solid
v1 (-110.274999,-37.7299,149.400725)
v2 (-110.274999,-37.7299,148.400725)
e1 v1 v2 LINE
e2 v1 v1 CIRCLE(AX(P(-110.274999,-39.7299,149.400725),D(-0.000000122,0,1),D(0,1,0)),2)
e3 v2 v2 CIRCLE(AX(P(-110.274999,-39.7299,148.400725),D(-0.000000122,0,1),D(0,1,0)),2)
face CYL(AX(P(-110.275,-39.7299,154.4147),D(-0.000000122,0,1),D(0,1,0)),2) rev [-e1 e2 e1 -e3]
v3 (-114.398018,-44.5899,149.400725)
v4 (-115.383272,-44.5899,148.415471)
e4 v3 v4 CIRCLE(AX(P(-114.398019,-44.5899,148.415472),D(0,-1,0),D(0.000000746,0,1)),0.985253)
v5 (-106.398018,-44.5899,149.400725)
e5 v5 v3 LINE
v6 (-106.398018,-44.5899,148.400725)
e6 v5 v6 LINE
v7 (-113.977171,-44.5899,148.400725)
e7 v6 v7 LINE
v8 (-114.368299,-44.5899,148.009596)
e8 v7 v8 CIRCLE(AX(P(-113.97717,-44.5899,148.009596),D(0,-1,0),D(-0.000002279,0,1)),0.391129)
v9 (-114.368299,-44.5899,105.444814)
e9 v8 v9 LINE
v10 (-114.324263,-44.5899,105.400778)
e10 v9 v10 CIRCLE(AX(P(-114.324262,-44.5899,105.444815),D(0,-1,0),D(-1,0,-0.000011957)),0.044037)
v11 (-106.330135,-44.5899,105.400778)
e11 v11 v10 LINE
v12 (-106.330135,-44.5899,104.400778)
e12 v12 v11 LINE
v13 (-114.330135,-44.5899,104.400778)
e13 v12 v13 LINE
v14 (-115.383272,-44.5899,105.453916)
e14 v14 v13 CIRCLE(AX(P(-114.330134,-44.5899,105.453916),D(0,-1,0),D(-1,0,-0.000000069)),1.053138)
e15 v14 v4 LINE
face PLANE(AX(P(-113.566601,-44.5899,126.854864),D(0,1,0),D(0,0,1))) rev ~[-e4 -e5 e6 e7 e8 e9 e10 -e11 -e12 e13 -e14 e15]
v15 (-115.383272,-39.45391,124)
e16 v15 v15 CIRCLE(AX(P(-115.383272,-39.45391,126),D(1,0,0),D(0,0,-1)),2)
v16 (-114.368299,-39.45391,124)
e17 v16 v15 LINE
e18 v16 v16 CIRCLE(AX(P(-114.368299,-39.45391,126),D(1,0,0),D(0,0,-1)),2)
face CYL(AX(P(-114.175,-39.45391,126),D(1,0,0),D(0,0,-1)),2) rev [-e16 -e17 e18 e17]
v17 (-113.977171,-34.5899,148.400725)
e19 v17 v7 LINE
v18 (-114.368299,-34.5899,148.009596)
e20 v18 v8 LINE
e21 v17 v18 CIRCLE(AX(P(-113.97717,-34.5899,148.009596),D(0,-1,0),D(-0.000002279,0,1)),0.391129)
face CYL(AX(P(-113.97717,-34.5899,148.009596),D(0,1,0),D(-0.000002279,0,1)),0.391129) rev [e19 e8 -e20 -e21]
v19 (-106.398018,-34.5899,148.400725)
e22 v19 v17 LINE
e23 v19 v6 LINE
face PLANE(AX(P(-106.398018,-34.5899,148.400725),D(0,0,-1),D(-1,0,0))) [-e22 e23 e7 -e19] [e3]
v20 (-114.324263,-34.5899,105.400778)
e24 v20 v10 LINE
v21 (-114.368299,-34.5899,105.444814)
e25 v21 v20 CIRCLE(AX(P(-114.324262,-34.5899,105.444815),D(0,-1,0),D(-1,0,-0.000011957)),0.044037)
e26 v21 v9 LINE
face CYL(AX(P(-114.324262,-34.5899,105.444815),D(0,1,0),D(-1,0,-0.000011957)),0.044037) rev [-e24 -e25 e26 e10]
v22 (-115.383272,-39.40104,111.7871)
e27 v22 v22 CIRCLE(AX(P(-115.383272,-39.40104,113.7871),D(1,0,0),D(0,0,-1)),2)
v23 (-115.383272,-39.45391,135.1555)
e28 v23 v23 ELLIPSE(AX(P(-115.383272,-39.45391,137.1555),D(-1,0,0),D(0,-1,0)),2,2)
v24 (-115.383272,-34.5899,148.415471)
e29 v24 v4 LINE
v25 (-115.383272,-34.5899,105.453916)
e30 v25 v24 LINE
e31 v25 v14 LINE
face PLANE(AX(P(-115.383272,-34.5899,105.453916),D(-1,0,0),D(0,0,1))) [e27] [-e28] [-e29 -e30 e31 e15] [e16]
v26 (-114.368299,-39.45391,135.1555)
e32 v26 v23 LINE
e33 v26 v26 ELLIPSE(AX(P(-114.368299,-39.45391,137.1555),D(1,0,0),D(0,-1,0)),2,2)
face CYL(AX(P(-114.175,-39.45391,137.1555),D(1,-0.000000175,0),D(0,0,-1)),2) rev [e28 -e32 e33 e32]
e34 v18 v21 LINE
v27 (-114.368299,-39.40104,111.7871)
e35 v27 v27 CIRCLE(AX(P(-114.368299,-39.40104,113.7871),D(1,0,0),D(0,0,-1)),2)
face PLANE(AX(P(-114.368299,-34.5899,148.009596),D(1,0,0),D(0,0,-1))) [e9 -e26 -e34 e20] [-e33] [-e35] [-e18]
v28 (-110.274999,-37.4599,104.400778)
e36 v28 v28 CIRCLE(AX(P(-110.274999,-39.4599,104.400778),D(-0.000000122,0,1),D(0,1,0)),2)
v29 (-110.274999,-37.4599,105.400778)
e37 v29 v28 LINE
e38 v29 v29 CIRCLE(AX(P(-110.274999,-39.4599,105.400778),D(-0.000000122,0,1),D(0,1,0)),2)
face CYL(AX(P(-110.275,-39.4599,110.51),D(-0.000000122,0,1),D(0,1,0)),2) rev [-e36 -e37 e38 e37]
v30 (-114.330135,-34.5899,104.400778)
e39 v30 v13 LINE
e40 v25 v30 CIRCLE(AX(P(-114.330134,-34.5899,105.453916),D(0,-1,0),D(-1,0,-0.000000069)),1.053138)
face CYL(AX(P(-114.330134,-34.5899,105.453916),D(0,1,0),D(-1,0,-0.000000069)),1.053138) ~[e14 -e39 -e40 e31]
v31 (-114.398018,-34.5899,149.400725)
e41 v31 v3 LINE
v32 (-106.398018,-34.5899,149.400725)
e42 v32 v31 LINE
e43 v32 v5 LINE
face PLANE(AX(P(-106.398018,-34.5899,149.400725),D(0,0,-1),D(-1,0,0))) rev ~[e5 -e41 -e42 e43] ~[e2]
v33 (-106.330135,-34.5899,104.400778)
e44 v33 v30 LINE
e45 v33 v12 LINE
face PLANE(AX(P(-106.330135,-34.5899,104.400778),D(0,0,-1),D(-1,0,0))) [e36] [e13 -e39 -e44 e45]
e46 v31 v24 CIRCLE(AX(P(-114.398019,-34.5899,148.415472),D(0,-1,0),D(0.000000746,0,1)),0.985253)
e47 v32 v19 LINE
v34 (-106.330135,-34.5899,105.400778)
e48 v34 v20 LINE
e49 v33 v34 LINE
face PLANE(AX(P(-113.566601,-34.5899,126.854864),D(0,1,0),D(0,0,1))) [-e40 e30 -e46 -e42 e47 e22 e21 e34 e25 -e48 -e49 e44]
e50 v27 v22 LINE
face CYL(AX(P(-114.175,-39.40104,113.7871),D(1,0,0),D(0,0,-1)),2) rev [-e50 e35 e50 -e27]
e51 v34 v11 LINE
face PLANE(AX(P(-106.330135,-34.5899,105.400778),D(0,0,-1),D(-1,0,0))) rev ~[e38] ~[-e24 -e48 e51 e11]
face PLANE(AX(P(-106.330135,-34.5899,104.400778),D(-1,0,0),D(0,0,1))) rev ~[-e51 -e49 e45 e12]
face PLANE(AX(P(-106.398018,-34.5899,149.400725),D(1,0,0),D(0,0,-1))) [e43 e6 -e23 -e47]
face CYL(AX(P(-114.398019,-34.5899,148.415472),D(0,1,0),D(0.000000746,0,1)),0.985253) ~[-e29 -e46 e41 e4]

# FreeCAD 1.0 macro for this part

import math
import FreeCAD as App
import Part
import Sketcher
from FreeCAD import Vector

doc = App.newDocument("Part")
body = doc.addObject("PartDesign::Body", "Body")

# Sketch on XY plane
sketch1 = body.newObject("Sketcher::SketchObject", "Sketch")
sketch1.AttachmentSupport = (doc.getObject("XY_Plane"), [""])
sketch1.MapMode = "FlatFace"
sketch1.addGeometry(Part.Circle(Vector(0, 0, 0), Vector(0, 0, 1), 2), False)
sketch1.addConstraint([
    Sketcher.Constraint("Coincident", 0, 3, -1, 1),
    Sketcher.Constraint("Diameter", 0, 4.0),
])
pad1 = body.newObject("PartDesign::Pad", "Pad")
pad1.Profile = sketch1
pad1.Length = 10
body2 = doc.addObject("PartDesign::Body", "Body001")
doc.recompute()

body.Placement = App.Placement(Vector(0, 0, 0), App.Rotation(Vector(0, 1, 0), 90))
boolean = body2.newObject("PartDesign::Boolean", "Boolean")
boolean.Type = "Fuse"
boolean.addObjects([body])
body3 = doc.addObject("PartDesign::Body", "Body002")
doc.recompute()

body2.Placement = App.Placement(Vector(15.49, 3.9, 4.87), App.Rotation(Vector(0, 0, 1), 0.000007))
boolean2 = body3.newObject("PartDesign::Boolean", "Boolean001")
boolean2.Type = "Fuse"
boolean2.addObjects([body2])
body4 = doc.addObject("PartDesign::Body", "Body003")

# Sketch on XY plane
sketch2 = body4.newObject("Sketcher::SketchObject", "Sketch001")
sketch2.AttachmentSupport = (doc.getObject("XY_Plane003"), [""])
sketch2.MapMode = "FlatFace"
sketch2.addGeometry(Part.Circle(Vector(0, 0, 0), Vector(0, 0, 1), 2), False)
sketch2.addConstraint([
    Sketcher.Constraint("Coincident", 0, 3, -1, 1),
    Sketcher.Constraint("Diameter", 0, 4.0),
])
pad2 = body4.newObject("PartDesign::Pad", "Pad001")
pad2.Profile = sketch2
pad2.Length = 10
body5 = doc.addObject("PartDesign::Body", "Body004")
doc.recompute()

body4.Placement = App.Placement(Vector(0, 0, 0), App.Rotation(Vector(0, 1, 0), 90))
boolean3 = body5.newObject("PartDesign::Boolean", "Boolean002")
boolean3.Type = "Fuse"
boolean3.addObjects([body4])
body6 = doc.addObject("PartDesign::Body", "Body005")
doc.recompute()

body5.Placement = App.Placement(Vector(-28.4147, 3.9, 5.14), App.Rotation(Vector(0, 0, 1), 0.000007))
boolean4 = body6.newObject("PartDesign::Boolean", "Boolean003")
boolean4.Type = "Fuse"
boolean4.addObjects([body5])
body7 = doc.addObject("PartDesign::Body", "Body006")

# Sketch on XY plane
sketch3 = body7.newObject("Sketcher::SketchObject", "Sketch002")
sketch3.AttachmentSupport = (doc.getObject("XY_Plane006"), [""])
sketch3.MapMode = "FlatFace"
sketch3.addGeometry(Part.Circle(Vector(0, 0, 0), Vector(0, 0, 1), 2), False)
sketch3.addConstraint([
    Sketcher.Constraint("Coincident", 0, 3, -1, 1),
    Sketcher.Constraint("Diameter", 0, 4.0),
])
pad3 = body7.newObject("PartDesign::Pad", "Pad002")
pad3.Profile = sketch3
pad3.Length = 2
body8 = doc.addObject("PartDesign::Body", "Body007")
doc.recompute()

body7.Placement = App.Placement(Vector(0, 0, 0), App.Rotation(Vector(1, 0, 0), 271.492946))
boolean5 = body8.newObject("PartDesign::Boolean", "Boolean004")
boolean5.Type = "Fuse"
boolean5.addObjects([body7])
body9 = doc.addObject("PartDesign::Body", "Body008")
doc.recompute()

body8.Placement = App.Placement(Vector(0, 0, 0), App.Rotation(Vector(0, 1, 0), 272.98249))
boolean6 = body9.newObject("PartDesign::Boolean", "Boolean005")
boolean6.Type = "Fuse"
boolean6.addObjects([body8])
body10 = doc.addObject("PartDesign::Body", "Body009")
doc.recompute()

body9.Placement = App.Placement(Vector(-26, 5.29, 4.9), App.Rotation(Vector(0, 0, 1), 267.755985))
boolean7 = body10.newObject("PartDesign::Boolean", "Boolean006")
boolean7.Type = "Fuse"
boolean7.addObjects([body9])
body11 = doc.addObject("PartDesign::Body", "Body010")

# Sketch on XY plane
sketch4 = body11.newObject("Sketcher::SketchObject", "Sketch003")
sketch4.AttachmentSupport = (doc.getObject("XY_Plane010"), [""])
sketch4.MapMode = "FlatFace"
sketch4.addGeometry(Part.Circle(Vector(0, 0, 0), Vector(0, 0, 1), 2), False)
sketch4.addConstraint([
    Sketcher.Constraint("Coincident", 0, 3, -1, 1),
    Sketcher.Constraint("Diameter", 0, 4.0),
])
pad4 = body11.newObject("PartDesign::Pad", "Pad003")
pad4.Profile = sketch4
pad4.Length = 2
body12 = doc.addObject("PartDesign::Body", "Body011")
doc.recompute()

body11.Placement = App.Placement(Vector(-11.1555, 0, 4.86401), App.Rotation(Vector(1, 0, 0), 90.00001))
boolean8 = body12.newObject("PartDesign::Boolean", "Boolean007")
boolean8.Type = "Fuse"
boolean8.addObjects([body11])
body13 = doc.addObject("PartDesign::Body", "Body012")

# Sketch on XY plane
sketch5 = body13.newObject("Sketcher::SketchObject", "Sketch004")
sketch5.AttachmentSupport = (doc.getObject("XY_Plane012"), [""])
sketch5.MapMode = "FlatFace"
sketch5.addGeometry(Part.Circle(Vector(0, 0, 0), Vector(0, 0, 1), 2), False)
sketch5.addConstraint([
    Sketcher.Constraint("Coincident", 0, 3, -1, 1),
    Sketcher.Constraint("Diameter", 0, 4.0),
])
pad5 = body13.newObject("PartDesign::Pad", "Pad004")
pad5.Profile = sketch5
pad5.Length = 2
body14 = doc.addObject("PartDesign::Body", "Body013")
doc.recompute()

body13.Placement = App.Placement(Vector(0, 0, 0), App.Rotation(Vector(1, 0, 0), 90))
boolean9 = body14.newObject("PartDesign::Boolean", "Boolean008")
boolean9.Type = "Fuse"
boolean9.addObjects([body13])
body15 = doc.addObject("PartDesign::Body", "Body014")
doc.recompute()

body14.Placement = App.Placement(Vector(0, 0, 4.86401), App.Rotation(Vector(0, 0, 1), 0))
boolean10 = body15.newObject("PartDesign::Boolean", "Boolean009")
boolean10.Type = "Fuse"
boolean10.addObjects([body14])
body16 = doc.addObject("PartDesign::Body", "Body015")

# Sketch on XY plane
sketch6 = body16.newObject("Sketcher::SketchObject", "Sketch005")
sketch6.AttachmentSupport = (doc.getObject("XY_Plane015"), [""])
sketch6.MapMode = "FlatFace"
sketch6.addGeometry(Part.Circle(Vector(0, 0, 0), Vector(0, 0, 1), 2), False)
sketch6.addConstraint([
    Sketcher.Constraint("Coincident", 0, 3, -1, 1),
    Sketcher.Constraint("Diameter", 0, 4.0),
])
pad6 = body16.newObject("PartDesign::Pad", "Pad005")
pad6.Profile = sketch6
pad6.Length = 2
body17 = doc.addObject("PartDesign::Body", "Body016")
doc.recompute()

body16.Placement = App.Placement(Vector(0, 0, 0), App.Rotation(Vector(1, 0, 0), 90))
boolean11 = body17.newObject("PartDesign::Boolean", "Boolean010")
boolean11.Type = "Fuse"
boolean11.addObjects([body16])
body18 = doc.addObject("PartDesign::Body", "Body017")
doc.recompute()

body17.Placement = App.Placement(Vector(12.2129, 0, 4.81114), App.Rotation(Vector(0, 0, 1), 0))
boolean12 = body18.newObject("PartDesign::Boolean", "Boolean011")
boolean12.Type = "Fuse"
boolean12.addObjects([body17])
body19 = doc.addObject("PartDesign::Body", "Body018")

# Sketch on XY plane
sketch7 = body19.newObject("Sketcher::SketchObject", "Sketch006")
sketch7.AttachmentSupport = (doc.getObject("XY_Plane018"), [""])
sketch7.MapMode = "FlatFace"
sketch7.addGeometry(Part.Circle(Vector(0, 0, 0), Vector(0, 0, 1), 2), False)
sketch7.addConstraint([
    Sketcher.Constraint("Coincident", 0, 3, -1, 1),
    Sketcher.Constraint("Diameter", 0, 4.0),
])
pad7 = body19.newObject("PartDesign::Pad", "Pad006")
pad7.Profile = sketch7
pad7.Length = 2
body20 = doc.addObject("PartDesign::Body", "Body019")
doc.recompute()

body19.Placement = App.Placement(Vector(0, 0, 0), App.Rotation(Vector(1, 0, 0), 271.492946))
boolean13 = body20.newObject("PartDesign::Boolean", "Boolean012")
boolean13.Type = "Fuse"
boolean13.addObjects([body19])
body21 = doc.addObject("PartDesign::Body", "Body020")
doc.recompute()

body20.Placement = App.Placement(Vector(0, 0, 0), App.Rotation(Vector(0, 1, 0), 272.98249))
boolean14 = body21.newObject("PartDesign::Boolean", "Boolean013")
boolean14.Type = "Fuse"
boolean14.addObjects([body20])
body22 = doc.addObject("PartDesign::Body", "Body021")
doc.recompute()

body21.Placement = App.Placement(Vector(25, 5.38, 4.9), App.Rotation(Vector(0, 0, 1), 267.755985))
boolean15 = body22.newObject("PartDesign::Boolean", "Boolean014")
boolean15.Type = "Fuse"
boolean15.addObjects([body21])
body23 = doc.addObject("PartDesign::Body", "Body022")

# Sketch on XY plane
sketch8 = body23.newObject("Sketcher::SketchObject", "Sketch007")
sketch8.AttachmentSupport = (doc.getObject("XY_Plane022"), [""])
sketch8.MapMode = "FlatFace"
sketch8.addGeometry([
    Part.LineSegment(Vector(-22.415471, -1.208272, 0), Vector(20.546084, -1.208272, 0)),  # 0
    Part.ArcOfCircle(Part.Circle(Vector(20.546084, -0.155134, 0), Vector(0, 0, 1), 1.053138), math.radians(-89.999996), math.radians(-0.000058)),  # 1
    Part.LineSegment(Vector(21.599222, -0.155135, 0), Vector(21.599222, 7.844865, 0)),  # 2
    Part.LineSegment(Vector(21.599222, 7.844865, 0), Vector(20.599222, 7.844865, 0)),  # 3
    Part.LineSegment(Vector(20.599222, 7.844865, 0), Vector(20.599222, -0.149263, 0)),  # 4
    Part.ArcOfCircle(Part.Circle(Vector(20.555185, -0.149262, 0), Vector(0, 0, 1), 0.044037), math.radians(-89.999314), math.radians(-0.000686)),  # 5
    Part.LineSegment(Vector(20.555186, -0.193299, 0), Vector(-22.009596, -0.193299, 0)),  # 6
    Part.ArcOfCircle(Part.Circle(Vector(-22.009596, 0.19783, 0), Vector(0, 0, 1), 0.391129), math.radians(-179.999869), math.radians(-89.999984)),  # 7
    Part.LineSegment(Vector(-22.400725, 0.197829, 0), Vector(-22.400725, 7.776982, 0)),  # 8
    Part.LineSegment(Vector(-22.400725, 7.776982, 0), Vector(-23.400725, 7.776982, 0)),  # 9
    Part.LineSegment(Vector(-23.400725, 7.776982, 0), Vector(-23.400725, -0.223018, 0)),  # 10
    Part.ArcOfCircle(Part.Circle(Vector(-22.415472, -0.223019, 0), Vector(0, 0, 1), 0.985253), math.radians(179.999957), math.radians(270.000043)),  # 11
], False)
sketch8.addConstraint([
    Sketcher.Constraint("Tangent", 0, 2, 1, 1),
    Sketcher.Constraint("Tangent", 1, 2, 2, 1),
    Sketcher.Constraint("Coincident", 2, 2, 3, 1),
    Sketcher.Constraint("Coincident", 3, 2, 4, 1),
    Sketcher.Constraint("Coincident", 4, 2, 5, 2),
    Sketcher.Constraint("Coincident", 5, 1, 6, 1),
    Sketcher.Constraint("Tangent", 6, 2, 7, 2),
    Sketcher.Constraint("Coincident", 7, 1, 8, 1),
    Sketcher.Constraint("Coincident", 8, 2, 9, 1),
    Sketcher.Constraint("Coincident", 9, 2, 10, 1),
    Sketcher.Constraint("Tangent", 10, 2, 11, 1),
    Sketcher.Constraint("Tangent", 11, 2, 0, 1),
    Sketcher.Constraint("Horizontal", 0),
    Sketcher.Constraint("Vertical", 2),
    Sketcher.Constraint("Horizontal", 3),
    Sketcher.Constraint("Vertical", 4),
    Sketcher.Constraint("Horizontal", 6),
    Sketcher.Constraint("Vertical", 8),
    Sketcher.Constraint("Horizontal", 9),
    Sketcher.Constraint("Vertical", 10),
    Sketcher.Constraint("Horizontal", 5, 3, 4, 2),
    Sketcher.Constraint("Equal", 3, 9),
    Sketcher.Constraint("Equal", 2, 10),
    Sketcher.Constraint("DistanceX", 3, 2, 3, 1, 1.0),
    Sketcher.Constraint("DistanceY", 2, 1, 2, 2, 8.0),
    Sketcher.Constraint("Radius", 1, 1.053138),
    Sketcher.Constraint("Radius", 7, 0.391129),
    Sketcher.Constraint("Radius", 5, 0.044037),
    Sketcher.Constraint("Radius", 11, 0.985253),
    Sketcher.Constraint("DistanceX", 6, 2, 6, 1, 42.564782),
    Sketcher.Constraint("DistanceY", 4, 2, 4, 1, 7.994128),
    Sketcher.Constraint("DistanceY", 5, 1, -1, 1, 0.193299),
    Sketcher.Constraint("DistanceX", 0, 2, 5, 1, 0.009102),
    Sketcher.Constraint("DistanceY", 11, 2, 7, 1, 1.406101),
    Sketcher.Constraint("DistanceX", 11, 3, -1, 1, 22.415472),
])
pad8 = body23.newObject("PartDesign::Pad", "Pad007")
pad8.Profile = sketch8
pad8.Length = 10
doc.recompute()

boolean16 = body23.newObject("PartDesign::Boolean", "Boolean015")
boolean16.Type = "Cut"
boolean16.addObjects([body22])
doc.recompute()

boolean17 = body23.newObject("PartDesign::Boolean", "Boolean016")
boolean17.Type = "Cut"
boolean17.addObjects([body18])
doc.recompute()

boolean18 = body23.newObject("PartDesign::Boolean", "Boolean017")
boolean18.Type = "Cut"
boolean18.addObjects([body15])
doc.recompute()

boolean19 = body23.newObject("PartDesign::Boolean", "Boolean018")
boolean19.Type = "Cut"
boolean19.addObjects([body12])
doc.recompute()

boolean20 = body23.newObject("PartDesign::Boolean", "Boolean019")
boolean20.Type = "Cut"
boolean20.addObjects([body10])
doc.recompute()

boolean21 = body23.newObject("PartDesign::Boolean", "Boolean020")
boolean21.Type = "Cut"
boolean21.addObjects([body6])
doc.recompute()

boolean22 = body23.newObject("PartDesign::Boolean", "Boolean021")
boolean22.Type = "Cut"
boolean22.addObjects([body3])
body24 = doc.addObject("PartDesign::Body", "Body023")
doc.recompute()

body23.Placement = App.Placement(Vector(0, 0, 0), App.Rotation(Vector(0, 1, 0), 90))
boolean23 = body24.newObject("PartDesign::Boolean", "Boolean022")
boolean23.Type = "Fuse"
boolean23.addObjects([body23])
body25 = doc.addObject("PartDesign::Body", "Body024")
doc.recompute()

body24.Placement = App.Placement(Vector(-114.175, -34.5899, 126), App.Rotation(Vector(0, 0, 1), 270))
boolean24 = body25.newObject("PartDesign::Boolean", "Boolean023")
boolean24.Type = "Fuse"
boolean24.addObjects([body24])

doc.recompute()
